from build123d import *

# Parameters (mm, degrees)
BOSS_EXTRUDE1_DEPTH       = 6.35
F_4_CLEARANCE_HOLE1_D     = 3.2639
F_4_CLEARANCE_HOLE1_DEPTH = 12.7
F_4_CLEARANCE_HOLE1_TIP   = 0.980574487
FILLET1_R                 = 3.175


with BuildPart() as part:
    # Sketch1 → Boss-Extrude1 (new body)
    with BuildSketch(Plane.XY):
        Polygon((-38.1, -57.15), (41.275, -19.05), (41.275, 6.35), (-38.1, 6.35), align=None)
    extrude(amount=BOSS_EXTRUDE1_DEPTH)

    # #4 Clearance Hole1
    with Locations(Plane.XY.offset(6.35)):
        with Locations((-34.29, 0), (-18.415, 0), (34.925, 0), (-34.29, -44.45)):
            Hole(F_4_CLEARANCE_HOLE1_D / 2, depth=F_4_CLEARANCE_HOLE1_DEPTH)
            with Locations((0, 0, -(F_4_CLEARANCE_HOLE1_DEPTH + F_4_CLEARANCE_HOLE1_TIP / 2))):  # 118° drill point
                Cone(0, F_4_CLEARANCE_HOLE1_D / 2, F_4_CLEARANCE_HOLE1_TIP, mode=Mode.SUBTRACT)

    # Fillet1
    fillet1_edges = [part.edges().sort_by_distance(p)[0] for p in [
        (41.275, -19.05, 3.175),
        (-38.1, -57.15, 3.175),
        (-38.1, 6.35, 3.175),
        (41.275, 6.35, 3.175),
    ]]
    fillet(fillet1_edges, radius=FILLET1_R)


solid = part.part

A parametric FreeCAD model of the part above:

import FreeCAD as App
import Part
import Sketcher
Q = App.Units.Quantity


def edges_at(feature, points):
    """Names of the edges that pass closest to the given points."""
    edges = feature.Shape.Edges
    near = lambda p: min(range(len(edges)), key=lambda i: edges[i].distToShape(Part.Vertex(*p))[0])
    return sorted({f"Edge{near(p) + 1}" for p in points})


def add_polygon(sketch, points):
    """Adds a closed chain of lines whose ends are joined by coincident constraints."""
    first, n = sketch.GeometryCount, len(points)
    for a, b in zip(points, points[1:] + points[:1]):
        sketch.addGeometry(Part.LineSegment(App.Vector(*a, 0), App.Vector(*b, 0)), False)
    for i in range(n):
        sketch.addConstraint(Sketcher.Constraint("Coincident", first + i, 2, first + (i + 1) % n, 1))

doc = App.newDocument("Part")
params = doc.addObject("Spreadsheet::Sheet", "Params")
for row, (alias, value) in enumerate([
    ("sketch1_height", "1 in"),
    ("sketch1_height2", "2.5 in"),
    ("sketch1_width", "3.125 in"),
    ("pad1_length", "0.25 in"),
    ("hole_diameter", "0.1285 in"),
    ("hole_depth", "0.5 in"),
    ("fillet_radius", "0.125 in"),
], start=1):
    params.set(f"A{row}", alias)
    params.set(f"B{row}", "=" + value)
    params.setAlias(f"B{row}", alias)

body = doc.addObject("PartDesign::Body", "Body")

# Sketch on XY plane
sketch1 = doc.addObject("Sketcher::SketchObject", "Sketch")
body.addObject(sketch1)
sketch1.AttachmentSupport = (doc.XY_Plane, [""])
sketch1.MapMode = "FlatFace"
add_polygon(sketch1, [(-38, -57), (41, -19), (41, 6), (-38, 6)])  # lines 0-3
sketch1.addConstraint([
    Sketcher.Constraint("Vertical", 1),
    Sketcher.Constraint("Horizontal", 2),
    Sketcher.Constraint("Vertical", 3),
    Sketcher.Constraint("DistanceY", 1, 1, 1, 2, Q("1 in")),
    Sketcher.Constraint("DistanceY", 3, 2, 3, 1, Q("2.5 in")),
    Sketcher.Constraint("DistanceX", 2, 2, -1, 1, Q("1.5 in")),
    Sketcher.Constraint("DistanceX", 2, 2, 2, 1, Q("3.125 in")),
    Sketcher.Constraint("DistanceY", 0, 2, -1, 1, Q("0.75 in")),
])
sketch1.setExpression("Constraints[7]", "Params.sketch1_height")
sketch1.setExpression("Constraints[8]", "Params.sketch1_height2")
sketch1.setExpression("Constraints[10]", "Params.sketch1_width")
pad1 = doc.addObject("PartDesign::Pad", "Pad")
body.addObject(pad1)
pad1.Profile = sketch1
pad1.setExpression("Length", "Params.pad1_length")

# Sketch on XY plane
sketch2 = doc.addObject("Sketcher::SketchObject", "Sketch001")
body.addObject(sketch2)
sketch2.AttachmentSupport = (doc.XY_Plane, [""])
sketch2.MapMode = "FlatFace"
sketch2.AttachmentOffset = App.Placement(App.Vector(0, 0, 0.25 * 25.4), App.Rotation())
sketch2.addGeometry([
    Part.Circle(App.Vector(-34.3, 0, 0), App.Vector(0, 0, 1), 1.6),
    Part.Circle(App.Vector(-18.4, 0, 0), App.Vector(0, 0, 1), 1.6),
    Part.Circle(App.Vector(34.9, 0, 0), App.Vector(0, 0, 1), 1.6),
    Part.Circle(App.Vector(-34.3, -44.5, 0), App.Vector(0, 0, 1), 1.6),
], False)
sketch2.addConstraint([
    Sketcher.Constraint("Equal", 0, 1),
    Sketcher.Constraint("Equal", 1, 2),
    Sketcher.Constraint("Equal", 2, 3),
    Sketcher.Constraint("PointOnObject", 0, 3, -1),
    Sketcher.Constraint("PointOnObject", 1, 3, -1),
    Sketcher.Constraint("PointOnObject", 2, 3, -1),
    Sketcher.Constraint("Vertical", 0, 3, 3, 3),
    Sketcher.Constraint("Diameter", 0, Q("0.1285 in")),
    Sketcher.Constraint("DistanceX", 1, 3, 2, 3, Q("2.1 in")),
    Sketcher.Constraint("DistanceX", 0, 3, -1, 1, Q("1.35 in")),
    Sketcher.Constraint("DistanceY", 3, 3, -1, 1, Q("1.75 in")),
    Sketcher.Constraint("DistanceX", 1, 3, -1, 1, Q("0.725 in")),
])
doc.recompute()
hole = doc.addObject("PartDesign::Hole", "Hole")
body.addObject(hole)
hole.Profile = sketch2
hole.ThreadType = "None"
hole.setExpression("Diameter", "Params.hole_diameter")
hole.DepthType = "Dimension"
hole.setExpression("Depth", "Params.hole_depth")
hole.DrillPoint = "Angled"
hole.DrillPointAngle = 118
doc.recompute()

fillet = doc.addObject("PartDesign::Fillet", "Fillet")
body.addObject(fillet)
fillet.Base = (hole, edges_at(hole, [
    (41.275, -19.05, 3.175),
    (-38.1, -57.15, 3.175),
    (-38.1, 6.35, 3.175),
    (41.275, 6.35, 3.175),
]))
fillet.setExpression("Radius", "Params.fillet_radius")

doc.recompute()
